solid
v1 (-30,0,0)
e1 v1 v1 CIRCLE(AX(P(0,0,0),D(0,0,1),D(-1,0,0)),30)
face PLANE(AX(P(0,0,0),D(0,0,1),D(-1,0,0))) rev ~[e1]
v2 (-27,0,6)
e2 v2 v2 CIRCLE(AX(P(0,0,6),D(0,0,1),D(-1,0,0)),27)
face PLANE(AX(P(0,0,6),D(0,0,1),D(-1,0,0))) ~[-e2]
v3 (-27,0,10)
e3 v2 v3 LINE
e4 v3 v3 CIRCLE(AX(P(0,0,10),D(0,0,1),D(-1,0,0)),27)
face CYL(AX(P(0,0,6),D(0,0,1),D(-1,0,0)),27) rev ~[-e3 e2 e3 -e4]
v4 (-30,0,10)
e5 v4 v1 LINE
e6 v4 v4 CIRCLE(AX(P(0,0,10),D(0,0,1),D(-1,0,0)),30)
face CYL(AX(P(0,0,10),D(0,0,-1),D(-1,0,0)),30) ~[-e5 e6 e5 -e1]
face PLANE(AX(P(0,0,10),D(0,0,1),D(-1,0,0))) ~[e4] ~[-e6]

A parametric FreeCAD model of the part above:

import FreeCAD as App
import Part
import Sketcher
Q = App.Units.Quantity


def add_polygon(sketch, points):
    """Adds a closed chain of lines whose ends are joined by coincident constraints."""
    first, n = sketch.GeometryCount, len(points)
    for a, b in zip(points, points[1:] + points[:1]):
        sketch.addGeometry(Part.LineSegment(App.Vector(*a, 0), App.Vector(*b, 0)), False)
    for i in range(n):
        sketch.addConstraint(Sketcher.Constraint("Coincident", first + i, 2, first + (i + 1) % n, 1))

doc = App.newDocument("Part")
body = doc.addObject("PartDesign::Body", "Body")

sketch1 = doc.addObject("Sketcher::SketchObject", "Sketch")
body.addObject(sketch1)
sketch1.AttachmentSupport = (doc.XZ_Plane, [""])
sketch1.MapMode = "FlatFace"
add_polygon(sketch1, [(0, 6), (-27, 6), (-27, 10), (-30, 10), (-30, 0), (0, 0)])
sketch1.addConstraint([
    Sketcher.Constraint("Horizontal", 0),
    Sketcher.Constraint("Vertical", 1),
    Sketcher.Constraint("Horizontal", 2),
    Sketcher.Constraint("Vertical", 3),
    Sketcher.Constraint("Horizontal", 4),
    Sketcher.Constraint("Vertical", 5),
    Sketcher.Constraint("Coincident", 4, 2, -1, 1),
    Sketcher.Constraint("DistanceX", 0, 2, 0, 1, Q("27 mm")),
    Sketcher.Constraint("DistanceX", 2, 2, 2, 1, Q("3 mm")),
    Sketcher.Constraint("DistanceY", 1, 1, 1, 2, Q("4 mm")),
    Sketcher.Constraint("DistanceY", 3, 2, 3, 1, Q("10 mm")),
])
revolution = doc.addObject("PartDesign::Revolution", "Revolution")
body.addObject(revolution)
revolution.Profile = sketch1
revolution.ReferenceAxis = (sketch1, ["V_Axis"])
revolution.Angle = 360

doc.recompute()
